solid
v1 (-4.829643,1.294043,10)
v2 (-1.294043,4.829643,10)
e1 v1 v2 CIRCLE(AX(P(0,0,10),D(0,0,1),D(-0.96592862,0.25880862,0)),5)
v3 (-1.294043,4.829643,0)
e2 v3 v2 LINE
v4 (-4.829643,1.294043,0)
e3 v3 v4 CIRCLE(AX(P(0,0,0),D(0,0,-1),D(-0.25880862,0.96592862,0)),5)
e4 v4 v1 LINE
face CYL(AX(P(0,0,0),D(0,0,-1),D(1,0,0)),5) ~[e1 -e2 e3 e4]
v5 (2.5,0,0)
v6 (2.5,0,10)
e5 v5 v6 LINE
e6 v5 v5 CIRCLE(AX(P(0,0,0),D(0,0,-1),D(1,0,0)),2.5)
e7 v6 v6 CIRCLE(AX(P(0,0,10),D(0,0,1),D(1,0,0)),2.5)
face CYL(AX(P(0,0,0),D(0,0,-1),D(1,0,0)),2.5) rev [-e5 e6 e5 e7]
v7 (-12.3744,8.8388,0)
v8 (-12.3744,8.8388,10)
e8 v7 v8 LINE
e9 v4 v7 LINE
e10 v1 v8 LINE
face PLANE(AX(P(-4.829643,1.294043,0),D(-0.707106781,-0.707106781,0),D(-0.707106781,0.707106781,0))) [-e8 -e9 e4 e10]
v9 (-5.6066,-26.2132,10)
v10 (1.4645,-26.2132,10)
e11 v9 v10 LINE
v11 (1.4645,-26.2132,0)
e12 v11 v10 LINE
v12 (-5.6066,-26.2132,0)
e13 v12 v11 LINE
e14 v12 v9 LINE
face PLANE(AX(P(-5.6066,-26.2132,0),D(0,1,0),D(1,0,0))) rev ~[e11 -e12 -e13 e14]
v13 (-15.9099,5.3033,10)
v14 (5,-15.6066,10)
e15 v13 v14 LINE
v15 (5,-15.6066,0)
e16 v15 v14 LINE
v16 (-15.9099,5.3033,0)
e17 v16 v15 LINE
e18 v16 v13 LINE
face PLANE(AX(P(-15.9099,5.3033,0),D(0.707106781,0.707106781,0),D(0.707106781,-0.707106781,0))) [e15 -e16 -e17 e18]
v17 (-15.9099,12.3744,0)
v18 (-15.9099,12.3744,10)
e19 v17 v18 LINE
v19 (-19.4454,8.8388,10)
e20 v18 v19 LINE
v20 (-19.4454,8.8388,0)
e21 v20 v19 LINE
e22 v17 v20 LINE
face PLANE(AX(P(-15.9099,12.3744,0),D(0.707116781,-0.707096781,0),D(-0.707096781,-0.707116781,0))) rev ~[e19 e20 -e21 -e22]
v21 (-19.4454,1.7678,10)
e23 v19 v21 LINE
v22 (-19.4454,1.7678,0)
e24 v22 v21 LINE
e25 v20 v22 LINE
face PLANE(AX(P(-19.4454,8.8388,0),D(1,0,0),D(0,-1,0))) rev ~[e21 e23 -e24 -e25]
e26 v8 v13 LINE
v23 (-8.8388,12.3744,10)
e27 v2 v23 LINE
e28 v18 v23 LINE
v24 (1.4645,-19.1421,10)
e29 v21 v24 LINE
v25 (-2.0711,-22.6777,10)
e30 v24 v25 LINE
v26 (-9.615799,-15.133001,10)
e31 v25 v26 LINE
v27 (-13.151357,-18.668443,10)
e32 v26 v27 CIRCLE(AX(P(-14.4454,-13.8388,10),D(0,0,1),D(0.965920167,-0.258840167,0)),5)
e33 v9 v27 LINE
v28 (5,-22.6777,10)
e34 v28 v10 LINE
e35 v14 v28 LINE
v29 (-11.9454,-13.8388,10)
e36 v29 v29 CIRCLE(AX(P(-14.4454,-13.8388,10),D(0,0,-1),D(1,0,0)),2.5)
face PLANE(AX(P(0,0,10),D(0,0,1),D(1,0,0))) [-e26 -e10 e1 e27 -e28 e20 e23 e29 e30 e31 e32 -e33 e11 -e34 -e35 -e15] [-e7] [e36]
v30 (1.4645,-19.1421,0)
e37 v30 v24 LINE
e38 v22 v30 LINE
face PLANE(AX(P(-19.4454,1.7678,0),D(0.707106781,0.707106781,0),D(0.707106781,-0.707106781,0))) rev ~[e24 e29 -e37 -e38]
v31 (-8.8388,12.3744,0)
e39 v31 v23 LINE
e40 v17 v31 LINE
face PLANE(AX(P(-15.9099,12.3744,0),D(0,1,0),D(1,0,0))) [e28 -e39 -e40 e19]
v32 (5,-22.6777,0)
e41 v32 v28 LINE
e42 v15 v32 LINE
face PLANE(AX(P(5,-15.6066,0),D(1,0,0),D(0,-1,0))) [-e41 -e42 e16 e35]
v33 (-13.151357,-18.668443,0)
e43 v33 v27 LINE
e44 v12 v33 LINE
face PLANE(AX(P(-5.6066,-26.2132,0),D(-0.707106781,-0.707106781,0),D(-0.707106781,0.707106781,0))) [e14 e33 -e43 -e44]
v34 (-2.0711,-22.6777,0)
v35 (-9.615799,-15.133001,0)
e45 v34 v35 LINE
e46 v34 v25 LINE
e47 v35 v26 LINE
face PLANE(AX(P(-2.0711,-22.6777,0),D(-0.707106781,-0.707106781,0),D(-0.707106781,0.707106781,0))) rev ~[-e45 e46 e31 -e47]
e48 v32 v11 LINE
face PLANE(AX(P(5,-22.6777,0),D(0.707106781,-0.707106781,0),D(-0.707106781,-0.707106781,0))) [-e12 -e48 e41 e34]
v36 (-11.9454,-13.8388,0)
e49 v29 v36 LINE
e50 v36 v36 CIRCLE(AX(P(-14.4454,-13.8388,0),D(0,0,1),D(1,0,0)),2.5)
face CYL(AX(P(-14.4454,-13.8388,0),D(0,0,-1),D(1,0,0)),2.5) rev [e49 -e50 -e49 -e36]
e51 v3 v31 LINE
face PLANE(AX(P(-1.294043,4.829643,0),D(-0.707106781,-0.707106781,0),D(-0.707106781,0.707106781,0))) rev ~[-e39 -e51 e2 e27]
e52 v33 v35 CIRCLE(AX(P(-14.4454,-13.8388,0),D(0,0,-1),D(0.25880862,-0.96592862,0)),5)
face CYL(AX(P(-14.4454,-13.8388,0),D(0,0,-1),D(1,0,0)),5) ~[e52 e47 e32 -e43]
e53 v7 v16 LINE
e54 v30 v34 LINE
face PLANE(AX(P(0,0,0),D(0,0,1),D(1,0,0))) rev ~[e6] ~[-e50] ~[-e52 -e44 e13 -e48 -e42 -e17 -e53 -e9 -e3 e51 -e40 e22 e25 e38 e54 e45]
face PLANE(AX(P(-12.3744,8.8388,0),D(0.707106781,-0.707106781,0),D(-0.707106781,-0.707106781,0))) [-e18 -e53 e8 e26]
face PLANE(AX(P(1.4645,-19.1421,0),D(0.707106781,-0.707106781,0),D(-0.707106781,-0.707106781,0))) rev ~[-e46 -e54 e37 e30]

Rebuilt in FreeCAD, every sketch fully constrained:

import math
import FreeCAD as App
import Part
import Sketcher
from FreeCAD import Vector
Q = App.Units.Quantity

doc = App.newDocument("Part")
params = doc.addObject("Spreadsheet::Sheet", "Params")
for row, (alias, value) in enumerate([
    ("sketch1_diameter", "5 mm"),
    ("sketch1_radius", "5 mm"),
    ("sketch1_length", "10.67 mm"),
    ("pad1_length", "10 mm"),
    ("sketch2_radius", "2.5 mm"),
    ("pocket1_length", "10 mm"),
], start=1):
    params.set(f"A{row}", alias)
    params.set(f"B{row}", "=" + value)
    params.setAlias(f"B{row}", alias)

body = doc.addObject("PartDesign::Body", "Body")

sketch1 = body.newObject("Sketcher::SketchObject", "Sketch")
sketch1.AttachmentSupport = (doc.getObject("XY_Plane"), [""])
sketch1.MapMode = "FlatFace"
sketch1.addGeometry([
    Part.LineSegment(Vector(-1.294043, 4.829643, 0), Vector(-8.8388, 12.3744, 0)),
    Part.LineSegment(Vector(-8.8388, 12.3744, 0), Vector(-15.9099, 12.3744, 0)),
    Part.LineSegment(Vector(-15.9099, 12.3744, 0), Vector(-19.4454, 8.8388, 0)),
    Part.LineSegment(Vector(-19.4454, 8.8388, 0), Vector(-19.4454, 1.7678, 0)),
    Part.LineSegment(Vector(-19.4454, 1.7678, 0), Vector(1.4645, -19.1421, 0)),
    Part.LineSegment(Vector(1.4645, -19.1421, 0), Vector(-2.0711, -22.6777, 0)),
    Part.LineSegment(Vector(-2.0711, -22.6777, 0), Vector(-9.615799, -15.133001, 0)),
    Part.ArcOfCircle(Part.Circle(Vector(-14.4454, -13.8388, 0), Vector(0, 0, 1), 5), math.radians(-15.001253), math.radians(284.999382)),
    Part.LineSegment(Vector(-13.151357, -18.668443, 0), Vector(-5.6066, -26.2132, 0)),
    Part.LineSegment(Vector(-5.6066, -26.2132, 0), Vector(1.4645, -26.2132, 0)),
    Part.LineSegment(Vector(1.4645, -26.2132, 0), Vector(5, -22.6777, 0)),
    Part.LineSegment(Vector(5, -22.6777, 0), Vector(5, -15.6066, 0)),
    Part.LineSegment(Vector(5, -15.6066, 0), Vector(-15.9099, 5.3033, 0)),
    Part.LineSegment(Vector(-15.9099, 5.3033, 0), Vector(-12.3744, 8.8388, 0)),
    Part.LineSegment(Vector(-12.3744, 8.8388, 0), Vector(-4.829643, 1.294043, 0)),
    Part.ArcOfCircle(Part.Circle(Vector(0, 0, 0), Vector(0, 0, 1), 5), math.radians(165.000618), math.radians(464.999382)),
    Part.Circle(Vector(0, 0, 0), Vector(0, 0, 1), 2.5),
    Part.ArcOfCircle(Part.Circle(Vector(-14.4454, -13.8388, 0), Vector(0, 0, 1), 2.5), math.radians(45), math.radians(225)),
    Part.LineSegment(Vector(-16.2132, -15.6066, 0), Vector(-12.6777, -12.0711, 0)),
], False)
sketch1.addConstraint([
    Sketcher.Constraint("Coincident", 0, 2, 1, 1),
    Sketcher.Constraint("Coincident", 1, 2, 2, 1),
    Sketcher.Constraint("Coincident", 2, 2, 3, 1),
    Sketcher.Constraint("Coincident", 3, 2, 4, 1),
    Sketcher.Constraint("Coincident", 4, 2, 5, 1),
    Sketcher.Constraint("Coincident", 5, 2, 6, 1),
    Sketcher.Constraint("Coincident", 6, 2, 7, 1),
    Sketcher.Constraint("Coincident", 7, 2, 8, 1),
    Sketcher.Constraint("Coincident", 8, 2, 9, 1),
    Sketcher.Constraint("Coincident", 9, 2, 10, 1),
    Sketcher.Constraint("Coincident", 10, 2, 11, 1),
    Sketcher.Constraint("Coincident", 11, 2, 12, 1),
    Sketcher.Constraint("Coincident", 12, 2, 13, 1),
    Sketcher.Constraint("Coincident", 13, 2, 14, 1),
    Sketcher.Constraint("Coincident", 14, 2, 15, 1),
    Sketcher.Constraint("Coincident", 15, 2, 0, 1),
    Sketcher.Constraint("Coincident", 17, 1, 18, 2),
    Sketcher.Constraint("Coincident", 18, 1, 17, 2),
    Sketcher.Constraint("Horizontal", 1),
    Sketcher.Constraint("Vertical", 3),
    Sketcher.Constraint("Horizontal", 9),
    Sketcher.Constraint("Vertical", 11),
    Sketcher.Constraint("Coincident", 15, 3, -1, 1),
    Sketcher.Constraint("Coincident", 16, 3, -1, 1),
    Sketcher.Constraint("Coincident", 17, 3, 7, 3),
    Sketcher.Constraint("Equal", 7, 15),
    Sketcher.Constraint("Equal", 16, 17),
    Sketcher.Constraint("Perpendicular", 0, 2),
    Sketcher.Constraint("Perpendicular", 2, 4),
    Sketcher.Constraint("Perpendicular", 4, 5),
    Sketcher.Constraint("Perpendicular", 5, 6),
    Sketcher.Constraint("Parallel", 6, 8),
    Sketcher.Constraint("Perpendicular", 8, 10),
    Sketcher.Constraint("Perpendicular", 10, 12),
    Sketcher.Constraint("Perpendicular", 12, 13),
    Sketcher.Constraint("Perpendicular", 13, 14),
    Sketcher.Constraint("Perpendicular", 14, 18),
    Sketcher.Constraint("Horizontal", 5, 2, 10, 2),
    Sketcher.Constraint("Horizontal", 2, 2, 13, 2),
    Sketcher.Constraint("Horizontal", 11, 2, 18, 1),
    Sketcher.Constraint("Vertical", 4, 2, 9, 2),
    Sketcher.Constraint("Vertical", 1, 2, 12, 2),
    Sketcher.Constraint("Equal", 1, 9),
    Sketcher.Constraint("Equal", 9, 3),
    Sketcher.Constraint("Equal", 3, 11),
    Sketcher.Constraint("Equal", 2, 5),
    Sketcher.Constraint("Equal", 0, 6),
    Sketcher.Constraint("Equal", 6, 8),
    Sketcher.Constraint("Equal", 5, 10),
    Sketcher.Constraint("Equal", 8, 14),
    Sketcher.Constraint("Equal", 13, 18),
    Sketcher.Constraint("Diameter", 16, Q("5 mm")),
    Sketcher.Constraint("Radius", 7, Q("5 mm")),
    Sketcher.Constraint("Angle", 0, Q("135 deg")),
    Sketcher.Constraint("DistanceX", -1, 1, 10, 2, Q("5 mm")),
    Sketcher.Constraint("DistanceX", 1, 2, 1, 1, Q("7.071 mm")),
    Sketcher.Constraint("Distance", 0, Q("10.67 mm")),
])
sketch1.setExpression("Constraints[51]", "Params.sketch1_diameter")
sketch1.setExpression("Constraints[52]", "Params.sketch1_radius")
sketch1.setExpression("Constraints[56]", "Params.sketch1_length")
pad1 = body.newObject("PartDesign::Pad", "Pad")
pad1.Profile = sketch1
pad1.setExpression("Length", "Params.pad1_length")

sketch2 = body.newObject("Sketcher::SketchObject", "Sketch001")
sketch2.AttachmentSupport = (doc.getObject("XY_Plane"), [""])
sketch2.MapMode = "FlatFace"
sketch2.AttachmentOffset = App.Placement(Vector(0, 0, 10), App.Rotation())
sketch2.addGeometry([
    Part.LineSegment(Vector(-12.6777, -12.0711, 0), Vector(-16.2132, -15.6066, 0)),
    Part.ArcOfCircle(Part.Circle(Vector(-14.4454, -13.8388, 0), Vector(0, 0, 1), 2.5), math.radians(-135), math.radians(45)),
], False)
sketch2.addConstraint([
    Sketcher.Constraint("Coincident", 0, 1, 1, 2),
    Sketcher.Constraint("Coincident", 1, 1, 0, 2),
    Sketcher.Constraint("Radius", 1, Q("2.5 mm")),
    Sketcher.Constraint("Angle", 0, Q("-135 deg")),
    Sketcher.Constraint("DistanceY", 0, 1, -1, 1, Q("12.071 mm")),
    Sketcher.Constraint("DistanceX", 1, 3, -1, 1, Q("14.4454 mm")),
    Sketcher.Constraint("DistanceY", 1, 3, -1, 1, Q("13.8388 mm")),
])
sketch2.setExpression("Constraints[2]", "Params.sketch2_radius")
pocket1 = body.newObject("PartDesign::Pocket", "Pocket")
pocket1.Profile = sketch2
pocket1.setExpression("Length", "Params.pocket1_length")

doc.recompute()
